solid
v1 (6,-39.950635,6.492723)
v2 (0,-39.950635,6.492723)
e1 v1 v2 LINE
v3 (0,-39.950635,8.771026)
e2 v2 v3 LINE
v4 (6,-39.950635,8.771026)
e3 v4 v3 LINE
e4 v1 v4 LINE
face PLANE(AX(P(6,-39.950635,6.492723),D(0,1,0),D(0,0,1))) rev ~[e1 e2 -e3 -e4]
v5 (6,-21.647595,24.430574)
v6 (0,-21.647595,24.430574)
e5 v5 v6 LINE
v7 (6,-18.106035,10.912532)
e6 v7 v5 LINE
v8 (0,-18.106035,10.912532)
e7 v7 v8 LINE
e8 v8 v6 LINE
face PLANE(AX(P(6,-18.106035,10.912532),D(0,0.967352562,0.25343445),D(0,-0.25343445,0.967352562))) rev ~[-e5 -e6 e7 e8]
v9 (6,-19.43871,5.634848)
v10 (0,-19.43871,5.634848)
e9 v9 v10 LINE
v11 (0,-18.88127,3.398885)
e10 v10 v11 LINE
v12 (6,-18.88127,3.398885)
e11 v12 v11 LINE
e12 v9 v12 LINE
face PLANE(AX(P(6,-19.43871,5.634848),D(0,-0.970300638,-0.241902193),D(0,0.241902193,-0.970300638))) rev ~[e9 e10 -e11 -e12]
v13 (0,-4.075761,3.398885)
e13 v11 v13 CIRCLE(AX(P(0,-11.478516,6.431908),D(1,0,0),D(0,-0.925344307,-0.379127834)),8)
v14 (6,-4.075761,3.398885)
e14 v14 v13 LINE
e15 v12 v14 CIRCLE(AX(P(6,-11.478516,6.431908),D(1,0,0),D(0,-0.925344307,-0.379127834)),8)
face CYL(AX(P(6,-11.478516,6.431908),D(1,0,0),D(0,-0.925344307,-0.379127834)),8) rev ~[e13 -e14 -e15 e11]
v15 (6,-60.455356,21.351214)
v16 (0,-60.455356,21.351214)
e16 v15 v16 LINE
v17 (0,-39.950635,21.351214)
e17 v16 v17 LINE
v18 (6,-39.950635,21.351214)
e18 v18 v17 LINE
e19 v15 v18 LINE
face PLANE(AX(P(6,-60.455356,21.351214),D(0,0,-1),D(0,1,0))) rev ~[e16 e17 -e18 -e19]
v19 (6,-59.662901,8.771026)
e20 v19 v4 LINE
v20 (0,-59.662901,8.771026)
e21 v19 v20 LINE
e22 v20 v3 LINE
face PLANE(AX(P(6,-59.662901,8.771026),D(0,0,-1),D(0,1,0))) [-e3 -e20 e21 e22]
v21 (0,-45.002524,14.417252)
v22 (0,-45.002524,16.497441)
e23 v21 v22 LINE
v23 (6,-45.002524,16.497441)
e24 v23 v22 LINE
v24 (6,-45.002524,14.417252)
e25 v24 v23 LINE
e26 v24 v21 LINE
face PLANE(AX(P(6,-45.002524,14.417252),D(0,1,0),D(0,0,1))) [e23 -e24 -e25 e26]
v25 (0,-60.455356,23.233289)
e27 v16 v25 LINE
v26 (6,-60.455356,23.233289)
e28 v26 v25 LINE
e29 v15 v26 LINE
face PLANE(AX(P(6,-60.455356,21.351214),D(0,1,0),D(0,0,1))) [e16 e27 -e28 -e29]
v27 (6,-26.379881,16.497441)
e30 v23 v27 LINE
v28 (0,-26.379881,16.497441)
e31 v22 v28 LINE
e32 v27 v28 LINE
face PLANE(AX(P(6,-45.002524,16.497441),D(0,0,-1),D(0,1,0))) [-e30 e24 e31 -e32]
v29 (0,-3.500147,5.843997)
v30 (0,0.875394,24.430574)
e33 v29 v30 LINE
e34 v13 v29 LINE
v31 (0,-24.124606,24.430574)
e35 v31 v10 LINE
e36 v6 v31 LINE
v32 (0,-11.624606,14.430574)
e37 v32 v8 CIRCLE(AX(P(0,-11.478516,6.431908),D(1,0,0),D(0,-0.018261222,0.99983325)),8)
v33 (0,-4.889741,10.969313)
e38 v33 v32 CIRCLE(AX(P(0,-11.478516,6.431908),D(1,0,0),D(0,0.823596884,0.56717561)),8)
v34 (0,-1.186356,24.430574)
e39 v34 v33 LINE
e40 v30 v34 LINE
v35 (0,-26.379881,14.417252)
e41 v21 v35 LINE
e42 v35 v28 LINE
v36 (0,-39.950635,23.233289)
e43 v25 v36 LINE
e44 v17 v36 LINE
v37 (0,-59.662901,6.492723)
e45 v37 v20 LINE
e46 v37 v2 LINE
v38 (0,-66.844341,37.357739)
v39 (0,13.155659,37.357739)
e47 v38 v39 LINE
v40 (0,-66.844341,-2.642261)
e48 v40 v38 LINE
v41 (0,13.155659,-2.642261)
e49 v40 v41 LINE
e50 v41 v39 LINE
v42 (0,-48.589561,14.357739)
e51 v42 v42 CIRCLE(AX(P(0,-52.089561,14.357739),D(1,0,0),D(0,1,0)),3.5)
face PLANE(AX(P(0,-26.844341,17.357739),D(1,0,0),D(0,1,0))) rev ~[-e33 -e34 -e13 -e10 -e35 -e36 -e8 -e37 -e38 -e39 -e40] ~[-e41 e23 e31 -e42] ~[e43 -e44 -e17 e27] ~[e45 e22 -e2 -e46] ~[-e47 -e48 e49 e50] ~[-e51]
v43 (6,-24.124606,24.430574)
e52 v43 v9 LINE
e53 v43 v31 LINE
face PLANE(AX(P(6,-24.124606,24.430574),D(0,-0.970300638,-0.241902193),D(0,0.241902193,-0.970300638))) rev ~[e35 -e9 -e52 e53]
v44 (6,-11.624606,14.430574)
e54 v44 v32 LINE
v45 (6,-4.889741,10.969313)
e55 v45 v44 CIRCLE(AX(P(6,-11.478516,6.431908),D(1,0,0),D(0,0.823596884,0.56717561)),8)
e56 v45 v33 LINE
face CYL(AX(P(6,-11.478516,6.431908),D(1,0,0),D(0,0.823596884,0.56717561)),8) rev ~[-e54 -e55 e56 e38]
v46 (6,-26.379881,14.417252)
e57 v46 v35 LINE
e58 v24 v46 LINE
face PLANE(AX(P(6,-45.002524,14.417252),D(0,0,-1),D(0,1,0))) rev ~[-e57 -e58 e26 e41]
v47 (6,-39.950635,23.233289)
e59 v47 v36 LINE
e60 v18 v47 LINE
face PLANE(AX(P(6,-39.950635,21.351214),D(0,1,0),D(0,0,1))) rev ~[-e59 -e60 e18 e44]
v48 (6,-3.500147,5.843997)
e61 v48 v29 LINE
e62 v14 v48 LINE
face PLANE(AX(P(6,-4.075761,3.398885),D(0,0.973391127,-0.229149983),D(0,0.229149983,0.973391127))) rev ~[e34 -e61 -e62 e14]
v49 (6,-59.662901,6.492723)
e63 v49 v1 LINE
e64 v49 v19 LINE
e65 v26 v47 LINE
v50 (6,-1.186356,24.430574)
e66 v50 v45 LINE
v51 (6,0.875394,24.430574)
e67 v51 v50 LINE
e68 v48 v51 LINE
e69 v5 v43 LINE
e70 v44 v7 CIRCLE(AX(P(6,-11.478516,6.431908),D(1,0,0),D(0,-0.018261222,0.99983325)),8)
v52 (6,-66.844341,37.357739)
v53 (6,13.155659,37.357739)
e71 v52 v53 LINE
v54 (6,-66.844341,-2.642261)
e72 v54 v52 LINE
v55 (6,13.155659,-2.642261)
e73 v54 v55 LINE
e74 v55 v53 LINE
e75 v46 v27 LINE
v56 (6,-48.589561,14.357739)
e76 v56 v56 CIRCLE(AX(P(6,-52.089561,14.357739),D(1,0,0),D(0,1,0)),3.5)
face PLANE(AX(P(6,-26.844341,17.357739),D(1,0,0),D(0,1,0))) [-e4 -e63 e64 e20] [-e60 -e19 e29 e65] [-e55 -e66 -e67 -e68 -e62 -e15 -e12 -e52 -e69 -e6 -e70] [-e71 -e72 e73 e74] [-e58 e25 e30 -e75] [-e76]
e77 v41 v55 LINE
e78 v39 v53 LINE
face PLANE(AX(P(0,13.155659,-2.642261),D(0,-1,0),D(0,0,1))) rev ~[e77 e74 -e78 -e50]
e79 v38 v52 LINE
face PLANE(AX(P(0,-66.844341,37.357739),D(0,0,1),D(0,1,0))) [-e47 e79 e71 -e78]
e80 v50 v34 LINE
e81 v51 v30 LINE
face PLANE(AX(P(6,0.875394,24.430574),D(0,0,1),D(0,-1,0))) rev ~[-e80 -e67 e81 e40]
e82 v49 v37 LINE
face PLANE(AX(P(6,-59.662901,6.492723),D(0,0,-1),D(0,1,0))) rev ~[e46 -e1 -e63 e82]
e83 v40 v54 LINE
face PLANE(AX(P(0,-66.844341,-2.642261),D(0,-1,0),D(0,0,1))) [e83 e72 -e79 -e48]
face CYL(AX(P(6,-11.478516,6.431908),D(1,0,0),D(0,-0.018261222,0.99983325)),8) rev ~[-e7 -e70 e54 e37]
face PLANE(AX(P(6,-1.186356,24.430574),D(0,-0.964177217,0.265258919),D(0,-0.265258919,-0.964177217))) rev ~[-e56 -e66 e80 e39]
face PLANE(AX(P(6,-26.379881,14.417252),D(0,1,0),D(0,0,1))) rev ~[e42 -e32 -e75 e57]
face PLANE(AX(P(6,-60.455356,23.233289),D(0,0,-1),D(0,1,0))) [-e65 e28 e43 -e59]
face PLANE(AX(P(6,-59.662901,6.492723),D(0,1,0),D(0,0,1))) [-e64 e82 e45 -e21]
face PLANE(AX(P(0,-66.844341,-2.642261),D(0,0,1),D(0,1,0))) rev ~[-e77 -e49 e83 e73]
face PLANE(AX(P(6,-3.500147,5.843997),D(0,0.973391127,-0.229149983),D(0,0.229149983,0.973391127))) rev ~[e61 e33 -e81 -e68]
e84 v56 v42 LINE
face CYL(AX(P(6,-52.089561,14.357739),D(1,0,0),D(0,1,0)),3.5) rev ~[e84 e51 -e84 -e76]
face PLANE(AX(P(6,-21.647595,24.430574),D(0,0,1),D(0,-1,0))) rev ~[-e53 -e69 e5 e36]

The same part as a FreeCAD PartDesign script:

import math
import FreeCAD as App
import Part
import Sketcher
from FreeCAD import Vector


def add_polygon(sketch, points):
    """Adds a closed chain of lines whose ends are joined by coincident constraints."""
    first, n = sketch.GeometryCount, len(points)
    for a, b in zip(points, points[1:] + points[:1]):
        sketch.addGeometry(Part.LineSegment(App.Vector(*a, 0), App.Vector(*b, 0)), False)
    for i in range(n):
        sketch.addConstraint(Sketcher.Constraint("Coincident", first + i, 2, first + (i + 1) % n, 1))

doc = App.newDocument("Part")
params = doc.addObject("Spreadsheet::Sheet", "Params")
for row, (alias, value) in enumerate([
    ("sketch1_width", "80 mm"),
    ("sketch1_height", "40 mm"),
    ("pad1_length", "6 mm"),
    ("sketch2_diameter", "7 mm"),
    ("pocket1_length", "25 mm"),
    ("sketch3_radius", "8 mm"),
    ("pocket2_length", "25 mm"),
    ("pocket3_length", "25 mm"),
], start=1):
    params.set(f"A{row}", alias)
    params.set(f"B{row}", "=" + value)
    params.setAlias(f"B{row}", alias)

body = doc.addObject("PartDesign::Body", "Body")

sketch1 = doc.addObject("Sketcher::SketchObject", "Sketch")
body.addObject(sketch1)
sketch1.AttachmentSupport = (doc.YZ_Plane, [""])
sketch1.MapMode = "FlatFace"
add_polygon(sketch1, [(-66.844341, 37.357739), (-66.844341, -2.642261), (13.155659, -2.642261), (13.155659, 37.357739)])
sketch1.addConstraint([
    Sketcher.Constraint("Vertical", 0),
    Sketcher.Constraint("Horizontal", 1),
    Sketcher.Constraint("Vertical", 2),
    Sketcher.Constraint("Horizontal", 3),
    Sketcher.Constraint("DistanceX", 1, 1, 1, 2, 80.0),
    Sketcher.Constraint("DistanceY", 0, 2, 0, 1, 40.0),
    Sketcher.Constraint("DistanceX", 0, 2, -1, 1, 66.844341),
    Sketcher.Constraint("DistanceY", 0, 2, -1, 1, 2.642261),
])
sketch1.setExpression("Constraints[8]", "Params.sketch1_width")
sketch1.setExpression("Constraints[9]", "Params.sketch1_height")
pad1 = doc.addObject("PartDesign::Pad", "Pad")
body.addObject(pad1)
pad1.Profile = sketch1
pad1.setExpression("Length", "Params.pad1_length")

sketch2 = doc.addObject("Sketcher::SketchObject", "Sketch001")
body.addObject(sketch2)
sketch2.AttachmentSupport = (doc.YZ_Plane, [""])
sketch2.MapMode = "FlatFace"
sketch2.AttachmentOffset = App.Placement(Vector(0, 0, 6), App.Rotation())
sketch2.addGeometry(Part.Circle(Vector(-52.089561, 14.357739, 0), Vector(0, 0, 1), 3.5), False)
sketch2.addConstraint([
    Sketcher.Constraint("Diameter", 0, 7.0),
    Sketcher.Constraint("DistanceX", 0, 3, -1, 1, 52.089561),
    Sketcher.Constraint("DistanceY", -1, 1, 0, 3, 14.357739),
])
sketch2.setExpression("Constraints[0]", "Params.sketch2_diameter")
pocket1 = doc.addObject("PartDesign::Pocket", "Pocket")
body.addObject(pocket1)
pocket1.Profile = sketch2
pocket1.setExpression("Length", "Params.pocket1_length")

sketch3 = doc.addObject("Sketcher::SketchObject", "Sketch002")
body.addObject(sketch3)
sketch3.AttachmentSupport = (doc.YZ_Plane, [""])
sketch3.MapMode = "FlatFace"
sketch3.AttachmentOffset = App.Placement(Vector(0, 0, 6), App.Rotation())
sketch3.addGeometry([
    Part.ArcOfCircle(Part.Circle(Vector(-11.478516, 6.431908, 0), Vector(0, 0, 1), 8), math.radians(34.553506), math.radians(91.046349)),
    Part.ArcOfCircle(Part.Circle(Vector(-11.478516, 6.431908, 0), Vector(0, 0, 1), 8), math.radians(91.046349), math.radians(145.938804)),
    Part.LineSegment(Vector(-18.106035, 10.912532, 0), Vector(-21.647595, 24.430574, 0)),
    Part.LineSegment(Vector(-21.647595, 24.430574, 0), Vector(-24.124606, 24.430574, 0)),
    Part.LineSegment(Vector(-24.124606, 24.430574, 0), Vector(-19.43871, 5.634848, 0)),
    Part.LineSegment(Vector(-19.43871, 5.634848, 0), Vector(-18.88127, 3.398885, 0)),
    Part.ArcOfCircle(Part.Circle(Vector(-11.478516, 6.431908, 0), Vector(0, 0, 1), 8), math.radians(-157.720331), math.radians(-22.279669)),
    Part.LineSegment(Vector(-4.075761, 3.398885, 0), Vector(-3.500147, 5.843997, 0)),
    Part.LineSegment(Vector(-3.500147, 5.843997, 0), Vector(0.875394, 24.430574, 0)),
    Part.LineSegment(Vector(0.875394, 24.430574, 0), Vector(-1.186356, 24.430574, 0)),
    Part.LineSegment(Vector(-1.186356, 24.430574, 0), Vector(-4.889741, 10.969313, 0)),
], False)
sketch3.addConstraint([
    Sketcher.Constraint("Tangent", 0, 2, 1, 1),
    Sketcher.Constraint("Coincident", 1, 2, 2, 1),
    Sketcher.Constraint("Coincident", 2, 2, 3, 1),
    Sketcher.Constraint("Coincident", 3, 2, 4, 1),
    Sketcher.Constraint("Coincident", 4, 2, 5, 1),
    Sketcher.Constraint("Coincident", 5, 2, 6, 1),
    Sketcher.Constraint("Coincident", 6, 2, 7, 1),
    Sketcher.Constraint("Coincident", 7, 2, 8, 1),
    Sketcher.Constraint("Coincident", 8, 2, 9, 1),
    Sketcher.Constraint("Coincident", 9, 2, 10, 1),
    Sketcher.Constraint("Coincident", 10, 2, 0, 1),
    Sketcher.Constraint("Horizontal", 3),
    Sketcher.Constraint("Horizontal", 9),
    Sketcher.Constraint("Coincident", 6, 3, 0, 3),
    Sketcher.Constraint("Equal", 0, 1),
    Sketcher.Constraint("Equal", 1, 6),
    Sketcher.Constraint("Parallel", 4, 5),
    Sketcher.Constraint("Parallel", 7, 8),
    Sketcher.Constraint("Horizontal", 5, 2, 6, 2),
    Sketcher.Constraint("Horizontal", 3, 2, 8, 2),
    Sketcher.Constraint("Radius", 0, 8.0),
    Sketcher.Constraint("DistanceY", 0, 2, 2, 2, 10.0),
    Sketcher.Constraint("DistanceX", 3, 2, 0, 2, 12.5),
    Sketcher.Constraint("DistanceX", 0, 2, 8, 2, 12.5),
    Sketcher.Constraint("DistanceX", 3, 2, 3, 1, 2.477011),
    Sketcher.Constraint("DistanceX", 9, 2, 9, 1, 2.06175),
    Sketcher.Constraint("DistanceX", 4, 2, -1, 1, 19.43871),
    Sketcher.Constraint("DistanceY", -1, 1, 4, 2, 5.634848),
    Sketcher.Constraint("DistanceX", 5, 2, -1, 1, 18.88127),
    Sketcher.Constraint("DistanceX", 6, 2, -1, 1, 4.075761),
    Sketcher.Constraint("DistanceX", 10, 2, -1, 1, 4.889741),
    Sketcher.Constraint("DistanceX", 0, 2, 0, 3, 0.14609),
    Sketcher.Constraint("DistanceX", 1, 2, 0, 2, 6.481429),
    Sketcher.Constraint("DistanceX", 0, 3, 7, 2, 7.978368),
])
sketch3.setExpression("Constraints[20]", "Params.sketch3_radius")
pocket2 = doc.addObject("PartDesign::Pocket", "Pocket001")
body.addObject(pocket2)
pocket2.Profile = sketch3
pocket2.setExpression("Length", "Params.pocket2_length")

sketch4 = doc.addObject("Sketcher::SketchObject", "Sketch003")
body.addObject(sketch4)
sketch4.AttachmentSupport = (doc.YZ_Plane, [""])
sketch4.MapMode = "FlatFace"
sketch4.AttachmentOffset = App.Placement(Vector(0, 0, 6), App.Rotation())
add_polygon(sketch4, [(-60.455356, 23.233289), (-60.455356, 21.351214), (-39.950635, 21.351214), (-39.950635, 23.233289)])
add_polygon(sketch4, [(-45.002524, 16.497441), (-45.002524, 14.417252), (-26.379881, 14.417252), (-26.379881, 16.497441)])
add_polygon(sketch4, [(-59.662901, 8.771026), (-59.662901, 6.492723), (-39.950635, 6.492723), (-39.950635, 8.771026)])
sketch4.addConstraint([
    Sketcher.Constraint("Vertical", 0),
    Sketcher.Constraint("Horizontal", 1),
    Sketcher.Constraint("Vertical", 2),
    Sketcher.Constraint("Horizontal", 3),
    Sketcher.Constraint("Vertical", 4),
    Sketcher.Constraint("Horizontal", 5),
    Sketcher.Constraint("Vertical", 6),
    Sketcher.Constraint("Horizontal", 7),
    Sketcher.Constraint("Vertical", 8),
    Sketcher.Constraint("Horizontal", 9),
    Sketcher.Constraint("Vertical", 10),
    Sketcher.Constraint("Horizontal", 11),
    Sketcher.Constraint("Vertical", 2, 2, 9, 2),
    Sketcher.Constraint("DistanceX", 1, 1, 1, 2, 20.504721),
    Sketcher.Constraint("DistanceY", 4, 2, 4, 1, 2.080189),
    Sketcher.Constraint("DistanceX", 8, 2, -1, 1, 59.662901),
    Sketcher.Constraint("DistanceX", 5, 1, 5, 2, 18.622642),
    Sketcher.Constraint("DistanceX", 9, 1, 9, 2, 19.712266),
    Sketcher.Constraint("DistanceY", 0, 2, 0, 1, 1.882074),
    Sketcher.Constraint("DistanceY", 8, 2, 8, 1, 2.278302),
    Sketcher.Constraint("DistanceY", -1, 1, 2, 2, 23.233289),
    Sketcher.Constraint("DistanceY", -1, 1, 4, 2, 14.417252),
    Sketcher.Constraint("DistanceX", 5, 2, -1, 1, 26.379881),
    Sketcher.Constraint("DistanceY", 8, 2, 0, 2, 14.858491),
])
pocket3 = doc.addObject("PartDesign::Pocket", "Pocket002")
body.addObject(pocket3)
pocket3.Profile = sketch4
pocket3.setExpression("Length", "Params.pocket3_length")

doc.recompute()
